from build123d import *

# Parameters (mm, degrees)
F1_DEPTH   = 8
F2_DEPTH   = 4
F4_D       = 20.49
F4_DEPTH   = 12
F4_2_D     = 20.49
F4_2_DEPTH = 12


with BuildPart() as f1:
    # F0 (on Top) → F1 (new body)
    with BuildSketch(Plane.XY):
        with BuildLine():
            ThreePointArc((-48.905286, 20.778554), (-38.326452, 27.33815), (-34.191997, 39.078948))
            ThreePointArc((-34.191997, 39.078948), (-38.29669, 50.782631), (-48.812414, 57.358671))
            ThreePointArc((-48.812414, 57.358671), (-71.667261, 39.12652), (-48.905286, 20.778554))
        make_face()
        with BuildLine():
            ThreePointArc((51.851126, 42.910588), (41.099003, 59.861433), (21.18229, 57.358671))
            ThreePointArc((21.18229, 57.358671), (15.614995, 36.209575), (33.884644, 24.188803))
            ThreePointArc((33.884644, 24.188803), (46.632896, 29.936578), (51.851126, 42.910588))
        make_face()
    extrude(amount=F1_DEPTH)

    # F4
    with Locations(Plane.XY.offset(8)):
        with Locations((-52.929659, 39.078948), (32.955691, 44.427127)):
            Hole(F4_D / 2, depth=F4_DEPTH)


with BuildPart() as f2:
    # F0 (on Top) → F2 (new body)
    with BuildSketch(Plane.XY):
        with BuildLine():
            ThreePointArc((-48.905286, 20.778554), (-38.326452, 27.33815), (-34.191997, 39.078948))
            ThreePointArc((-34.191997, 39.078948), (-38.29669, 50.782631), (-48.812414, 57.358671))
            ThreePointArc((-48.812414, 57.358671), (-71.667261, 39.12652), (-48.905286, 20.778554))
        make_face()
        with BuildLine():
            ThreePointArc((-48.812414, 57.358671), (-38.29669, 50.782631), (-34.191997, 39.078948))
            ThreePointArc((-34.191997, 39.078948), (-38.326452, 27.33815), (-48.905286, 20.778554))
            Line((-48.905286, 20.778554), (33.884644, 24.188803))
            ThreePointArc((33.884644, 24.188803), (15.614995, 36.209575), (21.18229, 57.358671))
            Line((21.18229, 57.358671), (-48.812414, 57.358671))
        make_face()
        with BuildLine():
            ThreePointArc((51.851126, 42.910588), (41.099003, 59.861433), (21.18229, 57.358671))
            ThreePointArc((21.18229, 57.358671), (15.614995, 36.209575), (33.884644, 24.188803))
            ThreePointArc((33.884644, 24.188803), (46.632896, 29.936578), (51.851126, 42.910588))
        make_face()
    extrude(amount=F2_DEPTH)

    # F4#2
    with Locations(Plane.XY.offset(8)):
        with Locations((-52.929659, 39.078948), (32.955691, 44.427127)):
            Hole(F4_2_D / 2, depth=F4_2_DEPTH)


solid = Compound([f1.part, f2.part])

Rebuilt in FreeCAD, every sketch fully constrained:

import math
import FreeCAD as App
import Part
import Sketcher
from FreeCAD import Vector
Q = App.Units.Quantity

doc = App.newDocument("Part")
params = doc.addObject("Spreadsheet::Sheet", "Params")
for row, (alias, value) in enumerate([
    ("pad1_length", "8 mm"),
    ("sketch2_diameter", "20.49 mm"),
    ("hole_diameter", "20.49 mm"),
    ("hole_depth", "12 mm"),
    ("pad2_length", "4 mm"),
    ("sketch4_diameter", "20.49 mm"),
    ("hole2_diameter", "20.49 mm"),
    ("hole2_depth", "12 mm"),
], start=1):
    params.set(f"A{row}", alias)
    params.set(f"B{row}", "=" + value)
    params.setAlias(f"B{row}", alias)

body = doc.addObject("PartDesign::Body", "Body")
body.AllowCompound = True

# Sketch on XY plane
sketch1 = body.newObject("Sketcher::SketchObject", "Sketch")
sketch1.AttachmentSupport = (doc.getObject("XY_Plane"), [""])
sketch1.MapMode = "FlatFace"
sketch1.addGeometry([
    Part.ArcOfCircle(Part.Circle(Vector(-53, 39, 0), Vector(0, 0, 1), 19), math.radians(-78), math.radians(0)),  # 0
    Part.ArcOfCircle(Part.Circle(Vector(-53, 39, 0), Vector(0, 0, 1), 19), math.radians(0), math.radians(77)),  # 1
    Part.ArcOfCircle(Part.Circle(Vector(-53, 39, 0), Vector(0, 0, 1), 19), math.radians(77), math.radians(282)),  # 2
    Part.ArcOfCircle(Part.Circle(Vector(33, 43, 0), Vector(0, 0, 1), 19), math.radians(0), math.radians(130)),  # 3
    Part.ArcOfCircle(Part.Circle(Vector(33, 43, 0), Vector(0, 0, 1), 19), math.radians(130), math.radians(272)),  # 4
    Part.ArcOfCircle(Part.Circle(Vector(33, 43, 0), Vector(0, 0, 1), 19), math.radians(-88), math.radians(0)),  # 5
], False)
sketch1.addConstraint([
    Sketcher.Constraint("Tangent", 0, 2, 1, 1),
    Sketcher.Constraint("Tangent", 1, 2, 2, 1),
    Sketcher.Constraint("Tangent", 2, 2, 0, 1),
    Sketcher.Constraint("Tangent", 3, 2, 4, 1),
    Sketcher.Constraint("Tangent", 4, 2, 5, 1),
    Sketcher.Constraint("Tangent", 5, 2, 3, 1),
    Sketcher.Constraint("Equal", 2, 3),
    Sketcher.Constraint("Horizontal", 2, 3, 0, 2),
    Sketcher.Constraint("Horizontal", 1, 2, 3, 2),
    Sketcher.Constraint("Horizontal", 4, 3, 5, 2),
    Sketcher.Constraint("Radius", 0, Q("18.737662 mm")),
    Sketcher.Constraint("DistanceX", 0, 3, -1, 1, Q("52.929659 mm")),
    Sketcher.Constraint("DistanceY", -1, 1, 4, 3, Q("42.910589 mm")),
    Sketcher.Constraint("DistanceY", -1, 1, 1, 2, Q("57.358671 mm")),
    Sketcher.Constraint("DistanceX", -1, 1, 3, 2, Q("21.18229 mm")),
    Sketcher.Constraint("DistanceY", 0, 3, 3, 3, Q("3.83164 mm")),
    Sketcher.Constraint("DistanceX", 2, 2, 0, 2, Q("14.713289 mm")),
    Sketcher.Constraint("DistanceX", 5, 3, 4, 2, Q("0.771179 mm")),
])
pad1 = body.newObject("PartDesign::Pad", "Pad")
pad1.Profile = sketch1
pad1.setExpression("Length", "Params.pad1_length")

# Sketch on XY plane
sketch2 = body.newObject("Sketcher::SketchObject", "Sketch001")
sketch2.AttachmentSupport = (doc.getObject("XY_Plane"), [""])
sketch2.MapMode = "FlatFace"
sketch2.AttachmentOffset = App.Placement(Vector(0, 0, 8), App.Rotation())
sketch2.addGeometry([
    Part.Circle(Vector(-53, 39, 0), Vector(0, 0, 1), 10),
    Part.Circle(Vector(33, 44, 0), Vector(0, 0, 1), 10),
], False)
sketch2.addConstraint([
    Sketcher.Constraint("Equal", 0, 1),
    Sketcher.Constraint("Diameter", 0, Q("20.49 mm")),
    Sketcher.Constraint("DistanceX", 0, 3, -1, 1, Q("52.929659 mm")),
    Sketcher.Constraint("DistanceX", -1, 1, 1, 3, Q("32.955691 mm")),
    Sketcher.Constraint("DistanceY", 0, 3, 1, 3, Q("5.348179 mm")),
    Sketcher.Constraint("DistanceY", -1, 1, 0, 3, Q("39.078948 mm")),
])
sketch2.setExpression("Constraints[1]", "Params.sketch2_diameter")
doc.recompute()
hole = body.newObject("PartDesign::Hole", "Hole")
hole.Profile = sketch2
hole.ThreadType = "None"
hole.setExpression("Diameter", "Params.hole_diameter")
hole.DepthType = "Dimension"
hole.setExpression("Depth", "Params.hole_depth")
hole.DrillPoint = "Flat"
body2 = doc.addObject("PartDesign::Body", "Body001")

# Sketch on XY plane
sketch3 = body2.newObject("Sketcher::SketchObject", "Sketch002")
sketch3.AttachmentSupport = (doc.getObject("XY_Plane001"), [""])
sketch3.MapMode = "FlatFace"
sketch3.addGeometry([
    Part.ArcOfCircle(Part.Circle(Vector(-53, 39, 0), Vector(0, 0, 1), 19), math.radians(77), math.radians(282)),  # 0
    Part.LineSegment(Vector(-49, 21, 0), Vector(34, 24, 0)),  # 1
    Part.ArcOfCircle(Part.Circle(Vector(33, 43, 0), Vector(0, 0, 1), 19), math.radians(-88), math.radians(0)),  # 2
    Part.ArcOfCircle(Part.Circle(Vector(33, 43, 0), Vector(0, 0, 1), 19), math.radians(0), math.radians(130)),  # 3
    Part.LineSegment(Vector(21, 57, 0), Vector(-49, 57, 0)),  # 4
], False)
sketch3.addConstraint([
    Sketcher.Constraint("Coincident", 0, 2, 1, 1),
    Sketcher.Constraint("Tangent", 1, 2, 2, 1),
    Sketcher.Constraint("Tangent", 2, 2, 3, 1),
    Sketcher.Constraint("Coincident", 3, 2, 4, 1),
    Sketcher.Constraint("Coincident", 4, 2, 0, 1),
    Sketcher.Constraint("Horizontal", 4),
    Sketcher.Constraint("Equal", 0, 2),
    Sketcher.Constraint("Equal", 0, 3),
    Sketcher.Constraint("Horizontal", 3, 3, 2, 2),
    Sketcher.Constraint("Radius", 2, Q("18.737661 mm")),
    Sketcher.Constraint("DistanceX", 4, 2, 4, 1, Q("69.994704 mm")),
    Sketcher.Constraint("DistanceX", 0, 3, -1, 1, Q("52.929659 mm")),
    Sketcher.Constraint("DistanceX", -1, 1, 3, 2, Q("21.18229 mm")),
    Sketcher.Constraint("DistanceY", -1, 1, 3, 2, Q("57.358671 mm")),
    Sketcher.Constraint("DistanceY", 0, 3, 2, 3, Q("3.83164 mm")),
    Sketcher.Constraint("DistanceX", 0, 2, 3, 3, Q("82.018749 mm")),
])
pad2 = body2.newObject("PartDesign::Pad", "Pad001")
pad2.Profile = sketch3
pad2.setExpression("Length", "Params.pad2_length")

# Sketch on XY plane
sketch4 = body2.newObject("Sketcher::SketchObject", "Sketch003")
sketch4.AttachmentSupport = (doc.getObject("XY_Plane001"), [""])
sketch4.MapMode = "FlatFace"
sketch4.AttachmentOffset = App.Placement(Vector(0, 0, 8), App.Rotation())
sketch4.addGeometry([
    Part.Circle(Vector(-53, 39, 0), Vector(0, 0, 1), 10),
    Part.Circle(Vector(33, 44, 0), Vector(0, 0, 1), 10),
], False)
sketch4.addConstraint([
    Sketcher.Constraint("Equal", 0, 1),
    Sketcher.Constraint("Diameter", 0, Q("20.49 mm")),
    Sketcher.Constraint("DistanceX", 0, 3, -1, 1, Q("52.929659 mm")),
    Sketcher.Constraint("DistanceX", -1, 1, 1, 3, Q("32.955691 mm")),
    Sketcher.Constraint("DistanceY", 0, 3, 1, 3, Q("5.348179 mm")),
    Sketcher.Constraint("DistanceY", -1, 1, 0, 3, Q("39.078948 mm")),
])
sketch4.setExpression("Constraints[1]", "Params.sketch4_diameter")
doc.recompute()
hole2 = body2.newObject("PartDesign::Hole", "Hole001")
hole2.Profile = sketch4
hole2.ThreadType = "None"
hole2.setExpression("Diameter", "Params.hole2_diameter")
hole2.DepthType = "Dimension"
hole2.setExpression("Depth", "Params.hole2_depth")
hole2.DrillPoint = "Flat"

doc.recompute()
